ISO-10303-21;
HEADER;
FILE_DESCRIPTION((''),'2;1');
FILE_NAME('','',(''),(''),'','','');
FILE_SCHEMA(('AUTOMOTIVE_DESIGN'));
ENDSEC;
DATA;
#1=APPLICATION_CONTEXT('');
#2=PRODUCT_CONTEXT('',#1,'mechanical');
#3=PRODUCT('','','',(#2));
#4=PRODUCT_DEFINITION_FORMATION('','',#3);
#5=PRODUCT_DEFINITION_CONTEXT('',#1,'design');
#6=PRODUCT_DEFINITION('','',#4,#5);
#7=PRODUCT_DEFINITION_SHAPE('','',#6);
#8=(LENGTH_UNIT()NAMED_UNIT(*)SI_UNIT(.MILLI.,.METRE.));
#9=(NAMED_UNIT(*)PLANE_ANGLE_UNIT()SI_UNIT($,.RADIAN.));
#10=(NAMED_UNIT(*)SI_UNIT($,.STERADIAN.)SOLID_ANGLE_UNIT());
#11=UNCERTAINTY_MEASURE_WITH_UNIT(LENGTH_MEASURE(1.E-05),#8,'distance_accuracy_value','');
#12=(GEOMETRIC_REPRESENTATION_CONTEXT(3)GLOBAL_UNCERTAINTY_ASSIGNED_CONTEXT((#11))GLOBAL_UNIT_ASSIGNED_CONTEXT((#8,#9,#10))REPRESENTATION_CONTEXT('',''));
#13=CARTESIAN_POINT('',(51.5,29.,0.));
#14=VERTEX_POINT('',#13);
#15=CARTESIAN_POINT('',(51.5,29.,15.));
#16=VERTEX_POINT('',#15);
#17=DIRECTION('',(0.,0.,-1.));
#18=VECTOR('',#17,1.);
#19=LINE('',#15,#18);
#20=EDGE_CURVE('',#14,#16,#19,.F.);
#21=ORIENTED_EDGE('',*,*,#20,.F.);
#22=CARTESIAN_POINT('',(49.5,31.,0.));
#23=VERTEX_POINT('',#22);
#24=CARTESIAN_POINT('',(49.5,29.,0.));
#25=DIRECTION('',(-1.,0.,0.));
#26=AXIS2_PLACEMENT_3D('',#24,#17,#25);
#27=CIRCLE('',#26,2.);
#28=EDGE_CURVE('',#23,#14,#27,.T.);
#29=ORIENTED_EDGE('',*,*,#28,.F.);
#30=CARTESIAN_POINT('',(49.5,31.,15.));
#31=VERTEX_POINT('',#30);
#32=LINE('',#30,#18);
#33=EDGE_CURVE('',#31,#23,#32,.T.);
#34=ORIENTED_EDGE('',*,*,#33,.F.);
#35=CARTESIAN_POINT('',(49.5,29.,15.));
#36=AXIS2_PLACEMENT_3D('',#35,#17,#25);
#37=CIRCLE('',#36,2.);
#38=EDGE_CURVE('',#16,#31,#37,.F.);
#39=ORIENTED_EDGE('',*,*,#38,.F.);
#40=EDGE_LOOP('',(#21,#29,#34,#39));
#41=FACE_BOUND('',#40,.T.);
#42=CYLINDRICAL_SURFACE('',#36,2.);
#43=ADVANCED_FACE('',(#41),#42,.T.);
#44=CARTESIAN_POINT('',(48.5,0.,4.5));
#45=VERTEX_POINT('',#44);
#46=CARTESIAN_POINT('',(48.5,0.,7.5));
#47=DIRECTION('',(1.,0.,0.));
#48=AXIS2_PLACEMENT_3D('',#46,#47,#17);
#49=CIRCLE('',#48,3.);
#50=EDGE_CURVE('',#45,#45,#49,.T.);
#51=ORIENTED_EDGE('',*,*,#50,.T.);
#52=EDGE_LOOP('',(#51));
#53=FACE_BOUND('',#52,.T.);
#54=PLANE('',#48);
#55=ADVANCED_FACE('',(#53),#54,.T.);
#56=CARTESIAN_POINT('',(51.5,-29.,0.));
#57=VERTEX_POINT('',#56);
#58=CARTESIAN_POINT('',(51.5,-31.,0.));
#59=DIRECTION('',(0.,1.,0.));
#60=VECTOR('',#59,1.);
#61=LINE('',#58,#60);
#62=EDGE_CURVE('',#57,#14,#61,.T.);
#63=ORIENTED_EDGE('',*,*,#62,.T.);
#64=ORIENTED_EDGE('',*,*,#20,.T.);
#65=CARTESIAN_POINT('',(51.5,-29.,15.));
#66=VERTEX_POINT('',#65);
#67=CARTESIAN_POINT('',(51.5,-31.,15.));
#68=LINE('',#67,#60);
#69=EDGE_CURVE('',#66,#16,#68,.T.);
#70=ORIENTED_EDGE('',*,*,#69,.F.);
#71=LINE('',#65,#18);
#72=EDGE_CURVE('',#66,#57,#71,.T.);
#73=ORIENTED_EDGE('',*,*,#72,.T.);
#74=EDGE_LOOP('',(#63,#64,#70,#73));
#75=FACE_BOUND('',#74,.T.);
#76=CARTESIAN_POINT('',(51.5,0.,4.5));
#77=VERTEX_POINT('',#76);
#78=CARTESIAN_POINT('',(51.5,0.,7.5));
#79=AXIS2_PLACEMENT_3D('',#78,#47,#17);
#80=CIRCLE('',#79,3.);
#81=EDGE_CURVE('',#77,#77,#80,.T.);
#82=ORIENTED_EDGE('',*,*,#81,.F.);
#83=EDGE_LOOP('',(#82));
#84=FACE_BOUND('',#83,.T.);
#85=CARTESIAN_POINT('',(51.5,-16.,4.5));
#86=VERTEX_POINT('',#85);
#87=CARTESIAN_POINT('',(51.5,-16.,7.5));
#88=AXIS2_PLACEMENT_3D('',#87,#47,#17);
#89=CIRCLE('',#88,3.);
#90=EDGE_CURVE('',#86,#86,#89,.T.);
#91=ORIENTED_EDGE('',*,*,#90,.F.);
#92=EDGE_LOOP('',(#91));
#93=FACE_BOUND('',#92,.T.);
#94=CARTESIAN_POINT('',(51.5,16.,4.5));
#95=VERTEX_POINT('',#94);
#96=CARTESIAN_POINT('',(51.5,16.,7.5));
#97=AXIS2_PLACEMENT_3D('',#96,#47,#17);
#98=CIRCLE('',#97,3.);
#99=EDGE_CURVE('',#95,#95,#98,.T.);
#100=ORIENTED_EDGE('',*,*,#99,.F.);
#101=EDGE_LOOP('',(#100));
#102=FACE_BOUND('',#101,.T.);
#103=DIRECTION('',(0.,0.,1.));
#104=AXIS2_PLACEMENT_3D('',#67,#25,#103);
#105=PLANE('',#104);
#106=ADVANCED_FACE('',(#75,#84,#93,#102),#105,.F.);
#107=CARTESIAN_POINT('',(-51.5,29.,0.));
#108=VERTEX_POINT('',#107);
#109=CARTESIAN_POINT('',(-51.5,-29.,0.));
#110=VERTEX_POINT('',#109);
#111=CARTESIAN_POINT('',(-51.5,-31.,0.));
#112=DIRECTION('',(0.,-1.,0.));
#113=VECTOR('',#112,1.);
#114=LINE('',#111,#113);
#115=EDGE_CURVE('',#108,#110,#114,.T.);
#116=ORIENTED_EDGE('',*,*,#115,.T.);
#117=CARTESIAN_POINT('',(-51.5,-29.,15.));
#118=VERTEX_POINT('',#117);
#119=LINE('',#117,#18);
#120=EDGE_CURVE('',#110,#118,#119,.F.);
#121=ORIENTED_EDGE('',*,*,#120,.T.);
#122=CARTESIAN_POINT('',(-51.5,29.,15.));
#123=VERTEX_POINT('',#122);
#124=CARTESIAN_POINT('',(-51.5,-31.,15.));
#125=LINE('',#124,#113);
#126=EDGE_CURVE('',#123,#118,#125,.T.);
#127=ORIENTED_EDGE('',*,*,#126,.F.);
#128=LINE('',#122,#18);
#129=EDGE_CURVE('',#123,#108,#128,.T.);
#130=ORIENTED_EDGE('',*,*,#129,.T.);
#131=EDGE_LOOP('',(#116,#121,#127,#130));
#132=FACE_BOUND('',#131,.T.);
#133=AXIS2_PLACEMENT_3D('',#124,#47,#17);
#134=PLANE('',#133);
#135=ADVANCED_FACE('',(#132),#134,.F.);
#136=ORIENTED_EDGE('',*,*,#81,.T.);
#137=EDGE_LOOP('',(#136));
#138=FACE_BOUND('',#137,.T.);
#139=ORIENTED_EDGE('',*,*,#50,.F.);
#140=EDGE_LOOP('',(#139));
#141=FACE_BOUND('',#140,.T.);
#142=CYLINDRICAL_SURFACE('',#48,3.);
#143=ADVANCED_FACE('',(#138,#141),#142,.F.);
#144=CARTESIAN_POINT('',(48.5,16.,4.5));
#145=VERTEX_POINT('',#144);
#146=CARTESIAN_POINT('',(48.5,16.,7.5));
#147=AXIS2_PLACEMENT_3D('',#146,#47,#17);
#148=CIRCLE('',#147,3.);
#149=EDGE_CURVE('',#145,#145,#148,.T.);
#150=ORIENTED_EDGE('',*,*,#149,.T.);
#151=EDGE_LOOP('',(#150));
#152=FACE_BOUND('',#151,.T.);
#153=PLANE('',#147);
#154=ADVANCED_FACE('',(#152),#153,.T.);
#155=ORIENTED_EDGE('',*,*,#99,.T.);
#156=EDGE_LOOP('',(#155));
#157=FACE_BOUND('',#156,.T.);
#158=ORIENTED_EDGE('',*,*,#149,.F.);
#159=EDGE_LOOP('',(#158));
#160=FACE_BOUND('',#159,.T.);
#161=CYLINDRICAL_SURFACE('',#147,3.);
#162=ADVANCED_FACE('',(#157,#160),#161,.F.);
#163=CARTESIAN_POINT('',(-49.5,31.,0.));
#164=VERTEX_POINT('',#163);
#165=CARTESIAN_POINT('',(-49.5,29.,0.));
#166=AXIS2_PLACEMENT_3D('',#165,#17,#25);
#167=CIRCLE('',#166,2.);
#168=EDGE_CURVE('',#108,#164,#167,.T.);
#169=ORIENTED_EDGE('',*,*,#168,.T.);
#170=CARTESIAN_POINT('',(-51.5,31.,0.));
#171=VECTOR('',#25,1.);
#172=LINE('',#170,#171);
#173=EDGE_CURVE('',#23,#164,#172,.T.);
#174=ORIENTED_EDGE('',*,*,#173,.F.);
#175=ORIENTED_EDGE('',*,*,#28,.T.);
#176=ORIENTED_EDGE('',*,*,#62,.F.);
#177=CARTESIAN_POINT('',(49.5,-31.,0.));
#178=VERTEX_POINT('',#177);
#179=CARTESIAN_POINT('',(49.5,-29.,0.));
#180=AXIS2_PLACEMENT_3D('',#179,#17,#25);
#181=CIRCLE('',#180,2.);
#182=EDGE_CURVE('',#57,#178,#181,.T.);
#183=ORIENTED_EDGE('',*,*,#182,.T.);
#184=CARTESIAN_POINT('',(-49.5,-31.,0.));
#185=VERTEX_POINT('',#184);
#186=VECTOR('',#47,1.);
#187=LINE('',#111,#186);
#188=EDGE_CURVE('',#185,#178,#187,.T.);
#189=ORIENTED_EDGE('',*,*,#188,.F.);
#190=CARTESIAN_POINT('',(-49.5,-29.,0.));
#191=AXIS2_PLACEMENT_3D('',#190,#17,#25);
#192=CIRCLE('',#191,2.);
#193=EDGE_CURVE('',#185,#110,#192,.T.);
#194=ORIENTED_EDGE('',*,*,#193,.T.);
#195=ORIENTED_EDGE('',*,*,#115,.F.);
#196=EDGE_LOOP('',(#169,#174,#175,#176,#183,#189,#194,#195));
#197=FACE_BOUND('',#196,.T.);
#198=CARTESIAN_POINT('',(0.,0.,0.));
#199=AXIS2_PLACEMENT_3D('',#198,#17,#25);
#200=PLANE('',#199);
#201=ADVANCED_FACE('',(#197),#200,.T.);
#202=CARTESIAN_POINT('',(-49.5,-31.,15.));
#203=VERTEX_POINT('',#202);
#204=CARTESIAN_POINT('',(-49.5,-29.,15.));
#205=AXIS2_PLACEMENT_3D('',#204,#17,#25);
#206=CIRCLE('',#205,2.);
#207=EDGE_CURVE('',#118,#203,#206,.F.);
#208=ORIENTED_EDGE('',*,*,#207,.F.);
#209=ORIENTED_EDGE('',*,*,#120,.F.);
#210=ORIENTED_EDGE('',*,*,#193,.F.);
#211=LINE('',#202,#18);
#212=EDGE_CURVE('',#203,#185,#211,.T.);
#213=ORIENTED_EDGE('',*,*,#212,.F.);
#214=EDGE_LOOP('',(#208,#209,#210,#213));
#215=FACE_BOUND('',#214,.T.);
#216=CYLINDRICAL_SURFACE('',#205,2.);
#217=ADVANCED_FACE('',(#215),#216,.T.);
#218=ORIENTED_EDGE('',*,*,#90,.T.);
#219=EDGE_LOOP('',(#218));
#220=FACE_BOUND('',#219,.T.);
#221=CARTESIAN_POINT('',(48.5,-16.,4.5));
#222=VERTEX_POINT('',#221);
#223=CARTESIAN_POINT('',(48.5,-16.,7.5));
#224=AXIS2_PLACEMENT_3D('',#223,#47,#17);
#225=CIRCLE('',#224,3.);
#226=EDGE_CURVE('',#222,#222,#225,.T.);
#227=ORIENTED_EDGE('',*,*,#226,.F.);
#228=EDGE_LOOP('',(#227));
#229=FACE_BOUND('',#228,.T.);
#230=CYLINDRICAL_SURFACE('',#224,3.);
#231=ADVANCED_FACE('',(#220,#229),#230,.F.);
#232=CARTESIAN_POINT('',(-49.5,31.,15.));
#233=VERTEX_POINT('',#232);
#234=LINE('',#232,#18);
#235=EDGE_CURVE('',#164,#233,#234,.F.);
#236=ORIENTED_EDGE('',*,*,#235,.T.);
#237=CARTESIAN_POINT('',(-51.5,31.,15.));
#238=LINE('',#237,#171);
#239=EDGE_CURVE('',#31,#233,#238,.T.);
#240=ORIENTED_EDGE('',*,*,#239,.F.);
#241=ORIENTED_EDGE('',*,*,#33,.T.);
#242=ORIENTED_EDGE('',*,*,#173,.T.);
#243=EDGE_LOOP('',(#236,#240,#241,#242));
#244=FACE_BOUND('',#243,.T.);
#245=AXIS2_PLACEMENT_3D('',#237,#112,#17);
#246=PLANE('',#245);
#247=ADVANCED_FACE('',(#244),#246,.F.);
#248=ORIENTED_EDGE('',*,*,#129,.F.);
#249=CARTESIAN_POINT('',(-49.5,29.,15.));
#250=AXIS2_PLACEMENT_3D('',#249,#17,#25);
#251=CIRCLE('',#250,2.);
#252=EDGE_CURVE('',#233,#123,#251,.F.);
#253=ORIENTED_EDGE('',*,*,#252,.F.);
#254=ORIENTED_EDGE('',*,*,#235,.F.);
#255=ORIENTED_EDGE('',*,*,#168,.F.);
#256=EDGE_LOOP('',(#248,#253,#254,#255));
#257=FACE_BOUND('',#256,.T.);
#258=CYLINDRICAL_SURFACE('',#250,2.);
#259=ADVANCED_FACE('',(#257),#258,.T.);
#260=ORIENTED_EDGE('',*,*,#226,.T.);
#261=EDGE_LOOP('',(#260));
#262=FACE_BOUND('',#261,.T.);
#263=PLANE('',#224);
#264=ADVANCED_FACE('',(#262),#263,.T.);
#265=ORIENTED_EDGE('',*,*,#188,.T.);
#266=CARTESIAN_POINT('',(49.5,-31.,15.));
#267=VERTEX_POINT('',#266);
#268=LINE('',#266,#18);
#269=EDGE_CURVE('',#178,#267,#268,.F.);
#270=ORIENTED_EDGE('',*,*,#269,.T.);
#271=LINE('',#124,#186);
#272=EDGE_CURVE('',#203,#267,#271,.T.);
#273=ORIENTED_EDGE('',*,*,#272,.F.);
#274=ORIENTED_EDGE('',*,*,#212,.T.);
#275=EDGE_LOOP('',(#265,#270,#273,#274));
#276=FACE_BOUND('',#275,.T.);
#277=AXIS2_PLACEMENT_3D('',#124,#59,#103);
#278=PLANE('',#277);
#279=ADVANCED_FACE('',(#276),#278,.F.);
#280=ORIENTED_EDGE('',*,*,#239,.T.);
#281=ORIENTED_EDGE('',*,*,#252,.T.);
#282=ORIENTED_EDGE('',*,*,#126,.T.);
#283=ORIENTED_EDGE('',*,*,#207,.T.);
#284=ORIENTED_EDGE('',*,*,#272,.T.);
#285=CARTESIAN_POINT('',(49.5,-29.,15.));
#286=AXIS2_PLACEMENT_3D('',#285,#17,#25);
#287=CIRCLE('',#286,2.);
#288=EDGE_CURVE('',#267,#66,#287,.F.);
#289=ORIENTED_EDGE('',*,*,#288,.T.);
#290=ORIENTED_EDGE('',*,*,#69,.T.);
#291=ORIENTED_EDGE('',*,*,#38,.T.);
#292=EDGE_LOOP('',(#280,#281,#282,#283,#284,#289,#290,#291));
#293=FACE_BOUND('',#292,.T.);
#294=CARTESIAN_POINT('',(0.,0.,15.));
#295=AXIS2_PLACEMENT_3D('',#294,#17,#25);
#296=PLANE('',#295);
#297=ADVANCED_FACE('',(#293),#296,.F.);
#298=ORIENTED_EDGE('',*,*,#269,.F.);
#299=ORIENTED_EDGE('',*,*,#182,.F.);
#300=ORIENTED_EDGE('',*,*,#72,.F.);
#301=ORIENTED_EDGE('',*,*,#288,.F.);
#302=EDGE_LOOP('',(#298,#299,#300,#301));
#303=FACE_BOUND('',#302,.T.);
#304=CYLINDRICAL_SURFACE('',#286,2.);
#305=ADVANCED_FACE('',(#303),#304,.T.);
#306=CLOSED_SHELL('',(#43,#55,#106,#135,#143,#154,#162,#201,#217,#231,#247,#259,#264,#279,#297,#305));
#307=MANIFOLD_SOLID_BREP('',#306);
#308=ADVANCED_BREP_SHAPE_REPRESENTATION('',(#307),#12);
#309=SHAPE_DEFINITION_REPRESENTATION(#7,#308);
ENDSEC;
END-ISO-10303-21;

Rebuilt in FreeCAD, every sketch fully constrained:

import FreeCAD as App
import Part
import Sketcher
from FreeCAD import Vector


def edges_at(feature, points):
    """Names of the edges that pass closest to the given points."""
    edges = feature.Shape.Edges
    near = lambda p: min(range(len(edges)), key=lambda i: edges[i].distToShape(Part.Vertex(*p))[0])
    return sorted({f"Edge{near(p) + 1}" for p in points})

doc = App.newDocument("Part")
body = doc.addObject("PartDesign::Body", "Body")

# Sketch on XY plane
sketch1 = doc.addObject("Sketcher::SketchObject", "Sketch")
body.addObject(sketch1)
sketch1.AttachmentSupport = (doc.XY_Plane, [""])
sketch1.MapMode = "FlatFace"
sketch1.addGeometry(Part.LineSegment(Vector(-51.5, 31, 0), Vector(-51.5, -31, 0)), False)
sketch1.addGeometry(Part.LineSegment(Vector(-51.5, -31, 0), Vector(51.5, -31, 0)), False)
sketch1.addGeometry(Part.LineSegment(Vector(51.5, -31, 0), Vector(51.5, 31, 0)), False)
sketch1.addGeometry(Part.LineSegment(Vector(51.5, 31, 0), Vector(-51.5, 31, 0)), False)
sketch1.addConstraint(Sketcher.Constraint("Coincident", 0, 2, 1, 1))
sketch1.addConstraint(Sketcher.Constraint("Coincident", 1, 2, 2, 1))
sketch1.addConstraint(Sketcher.Constraint("Coincident", 2, 2, 3, 1))
sketch1.addConstraint(Sketcher.Constraint("Coincident", 3, 2, 0, 1))
sketch1.addConstraint(Sketcher.Constraint("Vertical", 0))
sketch1.addConstraint(Sketcher.Constraint("Horizontal", 1))
sketch1.addConstraint(Sketcher.Constraint("Vertical", 2))
sketch1.addConstraint(Sketcher.Constraint("Horizontal", 3))
sketch1.addConstraint(Sketcher.Constraint("Symmetric", 0, 2, 2, 2, -1, 1))
sketch1.addConstraint(Sketcher.Constraint("DistanceX", 1, 1, 1, 2, 103.0))
sketch1.addConstraint(Sketcher.Constraint("DistanceY", 0, 2, 0, 1, 62.0))
pad1 = doc.addObject("PartDesign::Pad", "Pad")
body.addObject(pad1)
pad1.Profile = sketch1
pad1.Length = 15
doc.recompute()

fillet = doc.addObject("PartDesign::Fillet", "Fillet")
body.addObject(fillet)
fillet.Base = (pad1, edges_at(pad1, [
    (51.5, -31, 7.5),
    (-51.5, -31, 7.5),
    (-51.5, 31, 7.5),
    (51.5, 31, 7.5),
]))
fillet.Radius = 2

# Sketch on YZ plane
sketch2 = doc.addObject("Sketcher::SketchObject", "Sketch001")
body.addObject(sketch2)
sketch2.AttachmentSupport = (doc.YZ_Plane, [""])
sketch2.MapMode = "FlatFace"
sketch2.AttachmentOffset = App.Placement(Vector(0, 0, 51.5), App.Rotation())
sketch2.addGeometry(Part.Circle(Vector(0, 7.5, 0), Vector(0, 0, 1), 3), False)
sketch2.addGeometry(Part.Circle(Vector(16, 7.5, 0), Vector(0, 0, 1), 3), False)
sketch2.addGeometry(Part.Circle(Vector(-16, 7.5, 0), Vector(0, 0, 1), 3), False)
sketch2.addConstraint(Sketcher.Constraint("Equal", 0, 1))
sketch2.addConstraint(Sketcher.Constraint("Equal", 1, 2))
sketch2.addConstraint(Sketcher.Constraint("Symmetric", 1, 3, 2, 3, -2))
sketch2.addConstraint(Sketcher.Constraint("PointOnObject", 0, 3, -2))
sketch2.addConstraint(Sketcher.Constraint("Horizontal", 0, 3, 1, 3))
sketch2.addConstraint(Sketcher.Constraint("Diameter", 0, 6.0))
sketch2.addConstraint(Sketcher.Constraint("DistanceX", -1, 1, 1, 3, 16.0))
sketch2.addConstraint(Sketcher.Constraint("DistanceY", -1, 1, 0, 3, 7.5))
pocket1 = doc.addObject("PartDesign::Pocket", "Pocket")
body.addObject(pocket1)
pocket1.Profile = sketch2
pocket1.Length = 3

doc.recompute()
